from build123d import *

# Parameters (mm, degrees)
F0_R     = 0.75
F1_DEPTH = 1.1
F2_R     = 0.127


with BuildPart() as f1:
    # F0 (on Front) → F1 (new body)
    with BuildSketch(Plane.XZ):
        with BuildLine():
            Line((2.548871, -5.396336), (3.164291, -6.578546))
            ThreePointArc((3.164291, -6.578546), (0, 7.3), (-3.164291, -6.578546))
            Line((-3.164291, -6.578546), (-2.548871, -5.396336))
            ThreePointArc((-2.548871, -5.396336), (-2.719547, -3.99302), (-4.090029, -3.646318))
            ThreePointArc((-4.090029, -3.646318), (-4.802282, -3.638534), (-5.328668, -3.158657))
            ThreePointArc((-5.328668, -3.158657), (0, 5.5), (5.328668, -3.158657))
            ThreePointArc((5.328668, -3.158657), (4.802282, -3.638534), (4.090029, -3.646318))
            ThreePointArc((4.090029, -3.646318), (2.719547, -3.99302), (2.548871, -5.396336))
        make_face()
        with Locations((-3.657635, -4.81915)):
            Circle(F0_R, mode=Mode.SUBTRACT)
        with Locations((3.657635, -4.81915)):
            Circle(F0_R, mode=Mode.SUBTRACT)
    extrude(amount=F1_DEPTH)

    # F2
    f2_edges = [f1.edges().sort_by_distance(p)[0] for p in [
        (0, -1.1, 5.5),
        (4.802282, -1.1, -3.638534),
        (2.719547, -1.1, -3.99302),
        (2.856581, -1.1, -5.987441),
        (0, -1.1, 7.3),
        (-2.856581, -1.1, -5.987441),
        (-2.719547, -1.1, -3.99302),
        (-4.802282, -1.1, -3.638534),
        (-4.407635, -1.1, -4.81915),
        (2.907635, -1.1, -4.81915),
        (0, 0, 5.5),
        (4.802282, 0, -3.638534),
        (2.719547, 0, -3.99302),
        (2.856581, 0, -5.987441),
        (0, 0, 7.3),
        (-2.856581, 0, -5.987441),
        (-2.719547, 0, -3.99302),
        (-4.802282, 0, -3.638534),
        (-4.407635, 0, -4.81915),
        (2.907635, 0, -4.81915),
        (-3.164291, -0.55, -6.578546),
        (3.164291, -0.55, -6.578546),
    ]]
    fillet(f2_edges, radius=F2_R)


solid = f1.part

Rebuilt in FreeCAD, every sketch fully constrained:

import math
import FreeCAD as App
import Part
import Sketcher

V = App.Vector
Q = App.Units.Quantity

doc = App.newDocument("Part")
params = doc.addObject("Spreadsheet::Sheet", "Params")
for row, (alias, value) in enumerate([
    ("sketch1_radius", "1.000001 mm"),
    ("sketch1_diameter", "1.5 mm"),
    ("sketch1_radius2", "7.3 mm"),
    ("sketch1_radius3", "1.25 mm"),
    ("pad1_length", "1.1 mm"),
    ("fillet_radius", "0.127 mm"),
], start=1):
    params.set(f"A{row}", alias)
    params.set(f"B{row}", "=" + value)
    params.setAlias(f"B{row}", alias)

body = doc.addObject("PartDesign::Body", "Body")

sketch1 = body.newObject("Sketcher::SketchObject", "Sketch")
sketch1.AttachmentSupport = (doc.getObject("XZ_Plane"), [""])
sketch1.MapMode = "FlatFace"
sketch1.addGeometry([
    Part.LineSegment(V(2.5, -5.4, 0), V(3.2, -6.6, 0)),
    Part.ArcOfCircle(Part.Circle(V(0, 0, 0), V(0, 0, 1), 7.3), math.radians(-64), math.radians(244)),
    Part.LineSegment(V(-3.2, -6.6, 0), V(-2.5, -5.4, 0)),
    Part.ArcOfCircle(Part.Circle(V(-3.7, -4.8, 0), V(0, 0, 1), 1.3), math.radians(-27), math.radians(110)),
    Part.ArcOfCircle(Part.Circle(V(-4.4, -2.7, 0), V(0, 0, 1), 1), math.radians(-153), math.radians(-70)),
    Part.ArcOfCircle(Part.Circle(V(0, -0.5, 0), V(0, 0, 1), 6), math.radians(-27), math.radians(207)),
    Part.ArcOfCircle(Part.Circle(V(4.4, -2.7, 0), V(0, 0, 1), 1), math.radians(-110), math.radians(-27)),
    Part.ArcOfCircle(Part.Circle(V(3.7, -4.8, 0), V(0, 0, 1), 1.3), math.radians(70), math.radians(207)),
    Part.Circle(V(-3.7, -4.8, 0), V(0, 0, 1), 0.8),
    Part.Circle(V(3.7, -4.8, 0), V(0, 0, 1), 0.8),
], False)
sketch1.addConstraint([
    Sketcher.Constraint("Coincident", 0, 2, 1, 1),
    Sketcher.Constraint("Coincident", 1, 2, 2, 1),
    Sketcher.Constraint("Tangent", 2, 2, 3, 1),
    Sketcher.Constraint("Tangent", 3, 2, 4, 2),
    Sketcher.Constraint("Tangent", 4, 1, 5, 2),
    Sketcher.Constraint("Tangent", 5, 1, 6, 2),
    Sketcher.Constraint("Tangent", 6, 1, 7, 1),
    Sketcher.Constraint("Tangent", 7, 2, 0, 1),
    Sketcher.Constraint("Coincident", 1, 3, -1, 1),
    Sketcher.Constraint("Coincident", 8, 3, 3, 3),
    Sketcher.Constraint("Coincident", 9, 3, 7, 3),
    Sketcher.Constraint("Equal", 4, 6),
    Sketcher.Constraint("Equal", 3, 7),
    Sketcher.Constraint("Equal", 8, 9),
    Sketcher.Constraint("Symmetric", 4, 3, 6, 3, -2),
    Sketcher.Constraint("Symmetric", 2, 2, 7, 2, -2),
    Sketcher.Constraint("Radius", 4, Q("1.000001 mm")),
    Sketcher.Constraint("Diameter", 8, Q("1.5 mm")),
    Sketcher.Constraint("Radius", 1, Q("7.3 mm")),
    Sketcher.Constraint("Radius", 3, Q("1.25 mm")),
    Sketcher.Constraint("Angle", 0, Q("-62.499984 deg")),
    Sketcher.Constraint("Radius", 5, Q("5.969 mm")),
    Sketcher.Constraint("DistanceY", 5, 3, -1, 1, Q("0.469 mm")),
    Sketcher.Constraint("DistanceY", 3, 3, 4, 3, Q("2.111099 mm")),
    Sketcher.Constraint("DistanceY", 3, 3, -1, 1, Q("4.819151 mm")),
])
sketch1.setExpression("Constraints[16]", "Params.sketch1_radius")
sketch1.setExpression("Constraints[17]", "Params.sketch1_diameter")
sketch1.setExpression("Constraints[18]", "Params.sketch1_radius2")
sketch1.setExpression("Constraints[19]", "Params.sketch1_radius3")
pad1 = body.newObject("PartDesign::Pad", "Pad")
pad1.Profile = sketch1
pad1.setExpression("Length", "Params.pad1_length")
doc.recompute()

fillet = body.newObject("PartDesign::Fillet", "Fillet")
fillet.Base = (pad1, ["Edge1"])
fillet.UseAllEdges = True
fillet.setExpression("Radius", "Params.fillet_radius")

doc.recompute()
